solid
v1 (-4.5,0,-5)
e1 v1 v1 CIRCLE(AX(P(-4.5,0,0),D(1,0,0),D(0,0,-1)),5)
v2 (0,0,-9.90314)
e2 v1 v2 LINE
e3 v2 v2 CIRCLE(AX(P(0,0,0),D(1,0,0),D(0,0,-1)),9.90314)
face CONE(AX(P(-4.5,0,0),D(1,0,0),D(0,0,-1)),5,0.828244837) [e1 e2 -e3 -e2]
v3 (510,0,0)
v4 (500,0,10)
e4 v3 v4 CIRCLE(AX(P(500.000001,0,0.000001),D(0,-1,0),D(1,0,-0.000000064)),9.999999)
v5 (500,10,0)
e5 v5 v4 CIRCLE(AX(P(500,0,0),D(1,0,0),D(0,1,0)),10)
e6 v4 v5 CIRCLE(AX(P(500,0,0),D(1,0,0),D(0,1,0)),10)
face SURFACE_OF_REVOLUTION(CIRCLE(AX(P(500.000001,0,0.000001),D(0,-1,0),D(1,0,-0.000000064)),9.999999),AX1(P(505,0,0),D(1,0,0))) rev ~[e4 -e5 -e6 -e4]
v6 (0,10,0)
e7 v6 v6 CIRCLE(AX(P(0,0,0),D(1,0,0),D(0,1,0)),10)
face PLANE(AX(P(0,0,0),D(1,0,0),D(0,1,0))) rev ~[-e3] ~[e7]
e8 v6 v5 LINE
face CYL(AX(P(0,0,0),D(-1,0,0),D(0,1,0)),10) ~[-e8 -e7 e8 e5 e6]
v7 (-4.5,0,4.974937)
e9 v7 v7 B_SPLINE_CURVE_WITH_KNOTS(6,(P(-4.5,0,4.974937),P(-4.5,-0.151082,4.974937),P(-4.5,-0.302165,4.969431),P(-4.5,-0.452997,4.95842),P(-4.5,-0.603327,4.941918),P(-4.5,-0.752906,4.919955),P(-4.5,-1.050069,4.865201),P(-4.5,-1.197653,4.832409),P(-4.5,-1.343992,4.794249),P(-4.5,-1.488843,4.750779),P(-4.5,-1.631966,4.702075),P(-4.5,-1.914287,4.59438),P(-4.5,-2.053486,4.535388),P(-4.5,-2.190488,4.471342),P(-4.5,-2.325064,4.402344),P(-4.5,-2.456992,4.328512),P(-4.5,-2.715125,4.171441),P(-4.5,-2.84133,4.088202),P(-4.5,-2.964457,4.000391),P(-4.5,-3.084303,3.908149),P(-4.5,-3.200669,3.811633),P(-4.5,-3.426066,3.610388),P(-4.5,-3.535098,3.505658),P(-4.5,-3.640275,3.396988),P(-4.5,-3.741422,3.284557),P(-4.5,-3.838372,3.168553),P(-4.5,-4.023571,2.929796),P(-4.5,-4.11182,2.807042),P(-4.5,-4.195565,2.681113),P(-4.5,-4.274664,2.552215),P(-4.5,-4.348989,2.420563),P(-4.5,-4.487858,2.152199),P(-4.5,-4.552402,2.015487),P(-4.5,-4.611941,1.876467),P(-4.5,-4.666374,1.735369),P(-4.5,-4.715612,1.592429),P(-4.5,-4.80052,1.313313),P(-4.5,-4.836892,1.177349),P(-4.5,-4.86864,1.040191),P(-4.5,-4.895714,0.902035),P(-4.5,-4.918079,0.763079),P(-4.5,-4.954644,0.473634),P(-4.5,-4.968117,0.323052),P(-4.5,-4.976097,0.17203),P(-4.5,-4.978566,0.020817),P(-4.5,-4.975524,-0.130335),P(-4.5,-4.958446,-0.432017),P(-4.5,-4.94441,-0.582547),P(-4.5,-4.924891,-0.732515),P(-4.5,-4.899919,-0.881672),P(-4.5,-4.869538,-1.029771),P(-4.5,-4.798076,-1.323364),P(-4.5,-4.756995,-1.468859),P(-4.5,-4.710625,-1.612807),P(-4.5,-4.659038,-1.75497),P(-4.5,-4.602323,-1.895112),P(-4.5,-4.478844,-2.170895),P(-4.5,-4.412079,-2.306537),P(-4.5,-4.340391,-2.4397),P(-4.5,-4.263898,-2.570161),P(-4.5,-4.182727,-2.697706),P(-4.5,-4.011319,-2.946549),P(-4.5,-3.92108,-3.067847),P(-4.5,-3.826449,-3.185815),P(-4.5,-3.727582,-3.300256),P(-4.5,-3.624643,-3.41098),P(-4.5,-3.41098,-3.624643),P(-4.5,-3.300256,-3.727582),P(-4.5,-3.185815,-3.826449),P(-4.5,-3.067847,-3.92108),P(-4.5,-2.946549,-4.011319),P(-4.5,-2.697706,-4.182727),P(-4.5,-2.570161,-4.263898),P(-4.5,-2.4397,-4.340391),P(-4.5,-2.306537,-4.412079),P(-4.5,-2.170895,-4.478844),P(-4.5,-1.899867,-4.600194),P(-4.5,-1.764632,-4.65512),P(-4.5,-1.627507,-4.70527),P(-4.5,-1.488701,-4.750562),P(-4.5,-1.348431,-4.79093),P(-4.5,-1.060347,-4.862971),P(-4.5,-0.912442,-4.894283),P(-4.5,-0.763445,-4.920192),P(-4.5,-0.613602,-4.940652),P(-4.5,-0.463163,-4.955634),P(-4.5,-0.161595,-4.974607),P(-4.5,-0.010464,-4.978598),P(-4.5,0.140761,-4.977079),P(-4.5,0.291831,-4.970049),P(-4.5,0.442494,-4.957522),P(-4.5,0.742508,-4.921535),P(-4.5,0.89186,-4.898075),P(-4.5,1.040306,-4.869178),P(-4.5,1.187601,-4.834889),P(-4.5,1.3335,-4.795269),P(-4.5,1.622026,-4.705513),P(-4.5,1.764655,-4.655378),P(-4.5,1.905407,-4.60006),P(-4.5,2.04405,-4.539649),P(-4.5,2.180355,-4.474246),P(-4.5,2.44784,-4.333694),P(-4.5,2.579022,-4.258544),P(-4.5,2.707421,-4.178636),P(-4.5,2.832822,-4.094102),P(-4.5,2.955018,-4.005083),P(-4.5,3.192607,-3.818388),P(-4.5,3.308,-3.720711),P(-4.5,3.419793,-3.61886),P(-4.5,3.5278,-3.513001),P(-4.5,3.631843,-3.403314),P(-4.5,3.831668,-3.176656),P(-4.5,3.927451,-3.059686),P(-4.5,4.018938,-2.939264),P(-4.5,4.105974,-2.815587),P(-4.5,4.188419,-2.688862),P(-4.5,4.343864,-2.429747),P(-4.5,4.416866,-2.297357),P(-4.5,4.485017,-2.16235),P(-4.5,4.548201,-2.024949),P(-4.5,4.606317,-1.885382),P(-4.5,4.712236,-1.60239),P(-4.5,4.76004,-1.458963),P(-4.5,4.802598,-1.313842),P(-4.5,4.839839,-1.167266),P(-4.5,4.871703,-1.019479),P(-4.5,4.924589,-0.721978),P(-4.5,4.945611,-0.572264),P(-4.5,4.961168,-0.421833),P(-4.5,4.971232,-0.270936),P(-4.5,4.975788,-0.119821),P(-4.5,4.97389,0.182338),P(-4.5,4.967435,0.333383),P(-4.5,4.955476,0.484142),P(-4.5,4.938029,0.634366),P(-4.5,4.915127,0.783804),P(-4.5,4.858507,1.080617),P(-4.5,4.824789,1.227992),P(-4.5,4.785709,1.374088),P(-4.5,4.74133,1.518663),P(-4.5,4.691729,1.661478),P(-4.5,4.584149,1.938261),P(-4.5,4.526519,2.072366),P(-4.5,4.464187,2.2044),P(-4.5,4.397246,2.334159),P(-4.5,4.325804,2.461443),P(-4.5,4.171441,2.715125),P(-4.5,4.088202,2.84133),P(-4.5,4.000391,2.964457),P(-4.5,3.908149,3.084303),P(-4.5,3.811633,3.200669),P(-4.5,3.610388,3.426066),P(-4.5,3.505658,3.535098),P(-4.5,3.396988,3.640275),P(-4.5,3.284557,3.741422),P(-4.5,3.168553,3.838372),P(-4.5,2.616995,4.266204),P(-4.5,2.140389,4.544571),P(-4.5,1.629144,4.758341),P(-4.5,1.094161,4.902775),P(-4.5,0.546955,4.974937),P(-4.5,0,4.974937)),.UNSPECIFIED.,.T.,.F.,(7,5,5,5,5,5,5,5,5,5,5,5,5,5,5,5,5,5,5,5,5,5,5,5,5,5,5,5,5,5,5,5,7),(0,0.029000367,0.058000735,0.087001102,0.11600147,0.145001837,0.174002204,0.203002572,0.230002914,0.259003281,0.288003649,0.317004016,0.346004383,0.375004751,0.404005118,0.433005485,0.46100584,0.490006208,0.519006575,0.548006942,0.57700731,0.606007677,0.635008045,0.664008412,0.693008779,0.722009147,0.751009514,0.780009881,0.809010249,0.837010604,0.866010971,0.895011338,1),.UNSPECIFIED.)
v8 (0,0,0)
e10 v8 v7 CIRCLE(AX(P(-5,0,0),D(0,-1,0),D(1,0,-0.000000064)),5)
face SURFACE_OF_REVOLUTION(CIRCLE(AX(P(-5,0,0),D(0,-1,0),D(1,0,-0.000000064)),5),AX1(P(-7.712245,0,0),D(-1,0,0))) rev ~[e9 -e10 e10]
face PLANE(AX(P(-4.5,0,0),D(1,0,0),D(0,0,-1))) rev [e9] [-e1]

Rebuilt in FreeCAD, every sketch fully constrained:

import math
import FreeCAD as App
import Part
import Sketcher
Q = App.Units.Quantity

doc = App.newDocument("Part")
params = doc.addObject("Spreadsheet::Sheet", "Params")
for row, (alias, value) in enumerate([
    ("sketch1_diameter", "20 mm"),
    ("pad1_length", "500 mm"),
    ("sketch2_height", "5 mm"),
    ("sketch2_width", "4.5 mm"),
    ("revolution_angle", "360 deg"),
    ("sketch3_radius", "5 mm"),
    ("groove_angle", "360 deg"),
    ("sketch4_radius", "9.999999 mm"),
    ("revolution2_angle", "360 deg"),
], start=1):
    params.set(f"A{row}", alias)
    params.set(f"B{row}", "=" + value)
    params.setAlias(f"B{row}", alias)

body = doc.addObject("PartDesign::Body", "Body")

# Sketch on YZ plane
sketch1 = doc.addObject("Sketcher::SketchObject", "Sketch")
body.addObject(sketch1)
sketch1.AttachmentSupport = (doc.YZ_Plane, [""])
sketch1.MapMode = "FlatFace"
sketch1.addGeometry(Part.Circle(App.Vector(0, 0, 0), App.Vector(0, 0, 1), 10), False)
sketch1.addConstraint([
    Sketcher.Constraint("Coincident", 0, 3, -1, 1),
    Sketcher.Constraint("Diameter", 0, Q("20 mm")),
])
sketch1.setExpression("Constraints[1]", "Params.sketch1_diameter")
pad1 = doc.addObject("PartDesign::Pad", "Pad")
body.addObject(pad1)
pad1.Profile = sketch1
pad1.setExpression("Length", "Params.pad1_length")

# Sketch on XZ plane
sketch2 = doc.addObject("Sketcher::SketchObject", "Sketch001")
body.addObject(sketch2)
sketch2.AttachmentSupport = (doc.XZ_Plane, [""])
sketch2.MapMode = "FlatFace"
sketch2.addGeometry([
    Part.LineSegment(App.Vector(-4.5, -5, 0), App.Vector(0, -9.9, 0)),
    Part.LineSegment(App.Vector(0, -9.9, 0), App.Vector(0, 0, 0)),
    Part.LineSegment(App.Vector(0, 0, 0), App.Vector(-4.5, 0, 0)),
    Part.LineSegment(App.Vector(-4.5, 0, 0), App.Vector(-4.5, -5, 0)),
], False)
sketch2.addConstraint([
    Sketcher.Constraint("Coincident", 0, 2, 1, 1),
    Sketcher.Constraint("Coincident", 1, 2, 2, 1),
    Sketcher.Constraint("Coincident", 2, 2, 3, 1),
    Sketcher.Constraint("Coincident", 3, 2, 0, 1),
    Sketcher.Constraint("Vertical", 1),
    Sketcher.Constraint("Horizontal", 2),
    Sketcher.Constraint("Vertical", 3),
    Sketcher.Constraint("Coincident", 1, 2, -1, 1),
    Sketcher.Constraint("DistanceY", 3, 2, 3, 1, Q("5 mm")),
    Sketcher.Constraint("DistanceX", 2, 2, 2, 1, Q("4.5 mm")),
    Sketcher.Constraint("DistanceY", 1, 1, 1, 2, Q("9.90314 mm")),
])
sketch2.setExpression("Constraints[8]", "Params.sketch2_height")
sketch2.setExpression("Constraints[9]", "Params.sketch2_width")
revolution = doc.addObject("PartDesign::Revolution", "Revolution")
body.addObject(revolution)
revolution.Profile = sketch2
revolution.ReferenceAxis = (sketch2, ["H_Axis"])
revolution.setExpression("Angle", "Params.revolution_angle")

# Sketch on XZ plane
sketch3 = doc.addObject("Sketcher::SketchObject", "Sketch002")
body.addObject(sketch3)
sketch3.AttachmentSupport = (doc.XZ_Plane, [""])
sketch3.MapMode = "FlatFace"
sketch3.addGeometry([
    Part.LineSegment(App.Vector(-5, 0, 0), App.Vector(0, 0, 0)),
    Part.ArcOfCircle(Part.Circle(App.Vector(-5, 0, 0), App.Vector(0, 0, 1), 5), math.radians(0), math.radians(90)),
    Part.LineSegment(App.Vector(-5, 5, 0), App.Vector(-5, 0, 0)),
], False)
sketch3.addConstraint([
    Sketcher.Constraint("Coincident", 0, 2, 1, 1),
    Sketcher.Constraint("Coincident", 1, 2, 2, 1),
    Sketcher.Constraint("Coincident", 2, 2, 0, 1),
    Sketcher.Constraint("Horizontal", 0),
    Sketcher.Constraint("Vertical", 2),
    Sketcher.Constraint("Coincident", 0, 2, -1, 1),
    Sketcher.Constraint("Coincident", 2, 2, 1, 3),
    Sketcher.Constraint("Radius", 1, Q("5 mm")),
])
sketch3.setExpression("Constraints[7]", "Params.sketch3_radius")
groove = doc.addObject("PartDesign::Groove", "Groove")
body.addObject(groove)
groove.Profile = sketch3
groove.ReferenceAxis = (sketch3, ["H_Axis"])
groove.setExpression("Angle", "Params.groove_angle")

# Sketch on XZ plane
sketch4 = doc.addObject("Sketcher::SketchObject", "Sketch003")
body.addObject(sketch4)
sketch4.AttachmentSupport = (doc.XZ_Plane, [""])
sketch4.MapMode = "FlatFace"
sketch4.addGeometry([
    Part.LineSegment(App.Vector(500, 0, 0), App.Vector(510, 0, 0)),
    Part.ArcOfCircle(Part.Circle(App.Vector(500, 0, 0), App.Vector(0, 0, 1), 10), math.radians(0), math.radians(90)),
    Part.LineSegment(App.Vector(500, 10, 0), App.Vector(500, 0, 0)),
], False)
sketch4.addConstraint([
    Sketcher.Constraint("Coincident", 0, 2, 1, 1),
    Sketcher.Constraint("Coincident", 1, 2, 2, 1),
    Sketcher.Constraint("Coincident", 2, 2, 0, 1),
    Sketcher.Constraint("Horizontal", 0),
    Sketcher.Constraint("Vertical", 2),
    Sketcher.Constraint("Coincident", 2, 2, 1, 3),
    Sketcher.Constraint("PointOnObject", 1, 3, -1),
    Sketcher.Constraint("Radius", 1, Q("9.999999 mm")),
    Sketcher.Constraint("DistanceX", -1, 1, 1, 3, Q("500.000001 mm")),
])
sketch4.setExpression("Constraints[7]", "Params.sketch4_radius")
revolution2 = doc.addObject("PartDesign::Revolution", "Revolution001")
body.addObject(revolution2)
revolution2.Profile = sketch4
revolution2.ReferenceAxis = (sketch4, ["H_Axis"])
revolution2.setExpression("Angle", "Params.revolution2_angle")

doc.recompute()
